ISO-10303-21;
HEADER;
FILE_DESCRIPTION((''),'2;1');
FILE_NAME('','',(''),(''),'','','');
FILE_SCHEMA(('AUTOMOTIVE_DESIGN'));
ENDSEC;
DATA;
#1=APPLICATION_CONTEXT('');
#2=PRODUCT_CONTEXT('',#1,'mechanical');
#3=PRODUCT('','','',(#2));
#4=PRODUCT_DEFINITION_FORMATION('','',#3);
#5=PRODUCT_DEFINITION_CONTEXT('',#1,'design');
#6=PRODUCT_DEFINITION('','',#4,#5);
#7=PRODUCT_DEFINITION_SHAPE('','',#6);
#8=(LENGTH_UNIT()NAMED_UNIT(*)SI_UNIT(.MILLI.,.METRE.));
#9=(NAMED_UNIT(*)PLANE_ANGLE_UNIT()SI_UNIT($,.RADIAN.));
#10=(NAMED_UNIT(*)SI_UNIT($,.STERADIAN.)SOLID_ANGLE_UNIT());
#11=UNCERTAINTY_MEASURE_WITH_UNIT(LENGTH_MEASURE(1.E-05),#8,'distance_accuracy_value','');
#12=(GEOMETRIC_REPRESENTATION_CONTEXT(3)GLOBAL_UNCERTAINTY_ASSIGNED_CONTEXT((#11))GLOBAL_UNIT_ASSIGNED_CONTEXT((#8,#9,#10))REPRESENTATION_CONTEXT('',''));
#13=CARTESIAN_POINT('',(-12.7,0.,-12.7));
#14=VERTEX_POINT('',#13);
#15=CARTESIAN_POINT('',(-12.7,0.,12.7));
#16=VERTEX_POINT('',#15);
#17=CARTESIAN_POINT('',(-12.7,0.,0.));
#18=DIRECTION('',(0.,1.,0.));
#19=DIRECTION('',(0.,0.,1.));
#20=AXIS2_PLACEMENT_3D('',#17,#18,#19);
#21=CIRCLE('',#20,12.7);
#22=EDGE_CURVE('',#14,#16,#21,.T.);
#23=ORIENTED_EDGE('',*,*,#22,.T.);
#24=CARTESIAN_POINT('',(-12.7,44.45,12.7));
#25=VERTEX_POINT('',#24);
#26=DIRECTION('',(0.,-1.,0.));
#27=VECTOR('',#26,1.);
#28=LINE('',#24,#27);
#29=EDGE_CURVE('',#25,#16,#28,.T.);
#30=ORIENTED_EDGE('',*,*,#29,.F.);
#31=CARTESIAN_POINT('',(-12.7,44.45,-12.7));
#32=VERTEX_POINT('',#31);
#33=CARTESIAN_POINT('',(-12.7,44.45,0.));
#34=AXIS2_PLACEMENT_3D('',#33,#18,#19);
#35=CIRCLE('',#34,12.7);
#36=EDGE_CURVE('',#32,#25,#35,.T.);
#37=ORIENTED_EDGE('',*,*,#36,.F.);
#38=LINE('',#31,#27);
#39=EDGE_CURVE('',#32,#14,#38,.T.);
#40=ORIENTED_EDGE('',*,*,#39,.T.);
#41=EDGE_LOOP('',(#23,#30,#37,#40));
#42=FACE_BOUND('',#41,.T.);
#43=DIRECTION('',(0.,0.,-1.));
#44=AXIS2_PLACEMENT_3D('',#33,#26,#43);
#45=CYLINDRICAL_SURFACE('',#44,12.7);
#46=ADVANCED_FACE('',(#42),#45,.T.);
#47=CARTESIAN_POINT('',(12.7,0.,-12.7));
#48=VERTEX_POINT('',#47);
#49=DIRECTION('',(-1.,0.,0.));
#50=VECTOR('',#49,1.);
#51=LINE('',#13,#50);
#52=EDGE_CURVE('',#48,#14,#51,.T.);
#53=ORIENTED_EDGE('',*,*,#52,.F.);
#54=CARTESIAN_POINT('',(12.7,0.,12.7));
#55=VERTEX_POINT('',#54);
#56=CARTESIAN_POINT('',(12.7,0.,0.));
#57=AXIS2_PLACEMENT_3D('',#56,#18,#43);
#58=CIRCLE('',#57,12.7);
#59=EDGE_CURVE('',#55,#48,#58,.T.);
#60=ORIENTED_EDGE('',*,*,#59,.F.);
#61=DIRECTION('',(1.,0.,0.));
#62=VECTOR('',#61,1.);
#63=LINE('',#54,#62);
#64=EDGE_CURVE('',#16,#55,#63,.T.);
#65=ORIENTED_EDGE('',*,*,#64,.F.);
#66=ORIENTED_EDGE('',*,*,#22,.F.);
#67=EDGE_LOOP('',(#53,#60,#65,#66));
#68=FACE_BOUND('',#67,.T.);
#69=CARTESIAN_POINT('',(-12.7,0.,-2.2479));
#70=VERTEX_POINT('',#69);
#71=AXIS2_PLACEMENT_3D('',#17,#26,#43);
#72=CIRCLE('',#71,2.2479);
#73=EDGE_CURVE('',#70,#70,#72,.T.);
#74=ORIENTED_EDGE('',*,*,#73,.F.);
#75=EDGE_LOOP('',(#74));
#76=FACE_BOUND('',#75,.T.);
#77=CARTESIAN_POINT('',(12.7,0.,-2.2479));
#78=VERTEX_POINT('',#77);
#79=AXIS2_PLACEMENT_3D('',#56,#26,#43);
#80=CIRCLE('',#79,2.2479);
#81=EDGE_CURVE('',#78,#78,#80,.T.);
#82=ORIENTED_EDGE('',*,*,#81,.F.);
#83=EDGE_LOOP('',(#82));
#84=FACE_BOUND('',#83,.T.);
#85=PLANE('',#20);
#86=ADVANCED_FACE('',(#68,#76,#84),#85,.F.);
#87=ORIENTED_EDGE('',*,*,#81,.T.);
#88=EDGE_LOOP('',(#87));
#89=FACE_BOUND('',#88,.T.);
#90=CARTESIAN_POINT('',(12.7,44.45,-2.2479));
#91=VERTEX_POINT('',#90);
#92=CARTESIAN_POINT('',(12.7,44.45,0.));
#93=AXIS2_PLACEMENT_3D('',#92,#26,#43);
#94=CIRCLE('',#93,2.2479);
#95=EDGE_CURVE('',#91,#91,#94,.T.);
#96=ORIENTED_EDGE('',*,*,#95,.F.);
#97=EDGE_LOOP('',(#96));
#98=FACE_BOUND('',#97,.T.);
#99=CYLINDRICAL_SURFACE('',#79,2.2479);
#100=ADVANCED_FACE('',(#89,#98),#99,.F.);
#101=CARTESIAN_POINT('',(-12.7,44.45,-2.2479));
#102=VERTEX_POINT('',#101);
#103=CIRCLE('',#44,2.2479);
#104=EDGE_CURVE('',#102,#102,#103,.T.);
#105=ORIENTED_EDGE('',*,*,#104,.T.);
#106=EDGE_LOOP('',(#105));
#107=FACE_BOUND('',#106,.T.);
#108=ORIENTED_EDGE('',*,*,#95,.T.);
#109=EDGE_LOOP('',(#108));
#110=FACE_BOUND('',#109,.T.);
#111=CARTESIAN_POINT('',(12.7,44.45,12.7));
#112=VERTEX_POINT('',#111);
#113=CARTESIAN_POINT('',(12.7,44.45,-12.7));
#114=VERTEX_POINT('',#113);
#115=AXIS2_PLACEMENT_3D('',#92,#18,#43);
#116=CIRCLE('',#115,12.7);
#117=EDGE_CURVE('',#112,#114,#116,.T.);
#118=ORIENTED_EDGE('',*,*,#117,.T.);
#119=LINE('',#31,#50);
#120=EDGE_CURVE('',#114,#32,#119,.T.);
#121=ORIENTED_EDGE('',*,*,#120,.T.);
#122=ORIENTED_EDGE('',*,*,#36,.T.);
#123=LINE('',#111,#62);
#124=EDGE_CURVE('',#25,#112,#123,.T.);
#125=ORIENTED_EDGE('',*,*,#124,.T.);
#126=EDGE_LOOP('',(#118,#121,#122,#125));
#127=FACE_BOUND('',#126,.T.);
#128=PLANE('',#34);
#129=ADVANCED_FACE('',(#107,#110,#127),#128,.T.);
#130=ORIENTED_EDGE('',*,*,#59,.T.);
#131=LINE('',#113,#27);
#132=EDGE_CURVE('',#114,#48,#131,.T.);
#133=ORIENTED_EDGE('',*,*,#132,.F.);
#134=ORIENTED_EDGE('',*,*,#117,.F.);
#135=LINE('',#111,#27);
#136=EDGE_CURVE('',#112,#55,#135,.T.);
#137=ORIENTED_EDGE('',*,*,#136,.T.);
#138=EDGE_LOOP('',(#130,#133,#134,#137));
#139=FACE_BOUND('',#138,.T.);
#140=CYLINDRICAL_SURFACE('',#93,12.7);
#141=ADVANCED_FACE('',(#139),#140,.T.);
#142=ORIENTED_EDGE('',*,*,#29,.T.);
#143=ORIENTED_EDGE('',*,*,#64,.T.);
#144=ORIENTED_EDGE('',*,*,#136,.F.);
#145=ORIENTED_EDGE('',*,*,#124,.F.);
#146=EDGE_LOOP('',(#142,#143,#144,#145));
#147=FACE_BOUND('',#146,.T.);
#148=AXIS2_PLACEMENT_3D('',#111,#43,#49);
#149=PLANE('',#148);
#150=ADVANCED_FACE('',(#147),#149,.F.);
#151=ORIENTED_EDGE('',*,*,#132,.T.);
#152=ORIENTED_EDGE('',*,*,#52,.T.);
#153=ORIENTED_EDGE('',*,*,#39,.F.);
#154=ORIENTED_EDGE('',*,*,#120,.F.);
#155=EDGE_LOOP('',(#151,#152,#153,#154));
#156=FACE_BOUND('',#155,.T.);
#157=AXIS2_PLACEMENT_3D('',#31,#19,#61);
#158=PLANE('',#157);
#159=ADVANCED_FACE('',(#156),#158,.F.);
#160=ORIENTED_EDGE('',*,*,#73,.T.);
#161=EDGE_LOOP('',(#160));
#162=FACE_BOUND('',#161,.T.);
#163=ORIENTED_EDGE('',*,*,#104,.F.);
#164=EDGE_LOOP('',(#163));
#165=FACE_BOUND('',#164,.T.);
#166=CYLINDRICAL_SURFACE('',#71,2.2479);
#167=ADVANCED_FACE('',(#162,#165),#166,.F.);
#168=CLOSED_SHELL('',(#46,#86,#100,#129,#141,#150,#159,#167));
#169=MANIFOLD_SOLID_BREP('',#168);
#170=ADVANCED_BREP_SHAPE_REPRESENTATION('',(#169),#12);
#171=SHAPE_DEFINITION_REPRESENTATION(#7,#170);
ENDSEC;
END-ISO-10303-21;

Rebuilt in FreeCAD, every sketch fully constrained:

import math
import FreeCAD as App
import Part
import Sketcher
Q = App.Units.Quantity

doc = App.newDocument("Part")
body = doc.addObject("PartDesign::Body", "Body")

# Sketch on XZ plane
sketch1 = body.newObject("Sketcher::SketchObject", "Sketch")
sketch1.AttachmentSupport = (doc.getObject("XZ_Plane"), [""])
sketch1.MapMode = "FlatFace"
sketch1.addGeometry([
    Part.LineSegment(App.Vector(13, -13, 0), App.Vector(-13, -13, 0)),
    Part.ArcOfCircle(Part.Circle(App.Vector(-13, 0, 0), App.Vector(0, 0, 1), 13), math.radians(90), math.radians(270)),
    Part.LineSegment(App.Vector(-13, 13, 0), App.Vector(13, 13, 0)),
    Part.ArcOfCircle(Part.Circle(App.Vector(13, 0, 0), App.Vector(0, 0, 1), 13), math.radians(-90), math.radians(90)),
], False)
sketch1.addConstraint([
    Sketcher.Constraint("Tangent", 0, 2, 1, 2),
    Sketcher.Constraint("Tangent", 1, 1, 2, 1),
    Sketcher.Constraint("Tangent", 2, 2, 3, 2),
    Sketcher.Constraint("Tangent", 3, 1, 0, 1),
    Sketcher.Constraint("Horizontal", 0),
    Sketcher.Constraint("Horizontal", 2),
    Sketcher.Constraint("Symmetric", 1, 3, 3, 3, -1, 1),
    Sketcher.Constraint("Radius", 1, Q("0.5 in")),
    Sketcher.Constraint("DistanceX", 0, 2, 0, 1, Q("1 in")),
])
pad1 = body.newObject("PartDesign::Pad", "Pad")
pad1.Profile = sketch1
pad1.Length = Q("1.75 in")
pad1.Reversed = True

# Sketch on XZ plane
sketch2 = body.newObject("Sketcher::SketchObject", "Sketch001")
sketch2.AttachmentSupport = (doc.getObject("XZ_Plane"), [""])
sketch2.MapMode = "FlatFace"
sketch2.addGeometry([
    Part.Circle(App.Vector(12.7, 0, 0), App.Vector(0, 0, 1), 2.2),
    Part.Circle(App.Vector(-12.7, 0, 0), App.Vector(0, 0, 1), 2.2),
], False)
sketch2.addConstraint([
    Sketcher.Constraint("Equal", 0, 1),
    Sketcher.Constraint("Symmetric", 0, 3, 1, 3, -1, 1),
    Sketcher.Constraint("PointOnObject", 0, 3, -1),
    Sketcher.Constraint("Diameter", 0, Q("0.177 in")),
    Sketcher.Constraint("DistanceX", 1, 3, 0, 3, Q("1 in")),
])
doc.recompute()
hole = body.newObject("PartDesign::Hole", "Hole")
hole.Profile = sketch2
hole.ThreadType = "None"
hole.Diameter = Q("0.177 in")
hole.DepthType = "ThroughAll"

doc.recompute()
